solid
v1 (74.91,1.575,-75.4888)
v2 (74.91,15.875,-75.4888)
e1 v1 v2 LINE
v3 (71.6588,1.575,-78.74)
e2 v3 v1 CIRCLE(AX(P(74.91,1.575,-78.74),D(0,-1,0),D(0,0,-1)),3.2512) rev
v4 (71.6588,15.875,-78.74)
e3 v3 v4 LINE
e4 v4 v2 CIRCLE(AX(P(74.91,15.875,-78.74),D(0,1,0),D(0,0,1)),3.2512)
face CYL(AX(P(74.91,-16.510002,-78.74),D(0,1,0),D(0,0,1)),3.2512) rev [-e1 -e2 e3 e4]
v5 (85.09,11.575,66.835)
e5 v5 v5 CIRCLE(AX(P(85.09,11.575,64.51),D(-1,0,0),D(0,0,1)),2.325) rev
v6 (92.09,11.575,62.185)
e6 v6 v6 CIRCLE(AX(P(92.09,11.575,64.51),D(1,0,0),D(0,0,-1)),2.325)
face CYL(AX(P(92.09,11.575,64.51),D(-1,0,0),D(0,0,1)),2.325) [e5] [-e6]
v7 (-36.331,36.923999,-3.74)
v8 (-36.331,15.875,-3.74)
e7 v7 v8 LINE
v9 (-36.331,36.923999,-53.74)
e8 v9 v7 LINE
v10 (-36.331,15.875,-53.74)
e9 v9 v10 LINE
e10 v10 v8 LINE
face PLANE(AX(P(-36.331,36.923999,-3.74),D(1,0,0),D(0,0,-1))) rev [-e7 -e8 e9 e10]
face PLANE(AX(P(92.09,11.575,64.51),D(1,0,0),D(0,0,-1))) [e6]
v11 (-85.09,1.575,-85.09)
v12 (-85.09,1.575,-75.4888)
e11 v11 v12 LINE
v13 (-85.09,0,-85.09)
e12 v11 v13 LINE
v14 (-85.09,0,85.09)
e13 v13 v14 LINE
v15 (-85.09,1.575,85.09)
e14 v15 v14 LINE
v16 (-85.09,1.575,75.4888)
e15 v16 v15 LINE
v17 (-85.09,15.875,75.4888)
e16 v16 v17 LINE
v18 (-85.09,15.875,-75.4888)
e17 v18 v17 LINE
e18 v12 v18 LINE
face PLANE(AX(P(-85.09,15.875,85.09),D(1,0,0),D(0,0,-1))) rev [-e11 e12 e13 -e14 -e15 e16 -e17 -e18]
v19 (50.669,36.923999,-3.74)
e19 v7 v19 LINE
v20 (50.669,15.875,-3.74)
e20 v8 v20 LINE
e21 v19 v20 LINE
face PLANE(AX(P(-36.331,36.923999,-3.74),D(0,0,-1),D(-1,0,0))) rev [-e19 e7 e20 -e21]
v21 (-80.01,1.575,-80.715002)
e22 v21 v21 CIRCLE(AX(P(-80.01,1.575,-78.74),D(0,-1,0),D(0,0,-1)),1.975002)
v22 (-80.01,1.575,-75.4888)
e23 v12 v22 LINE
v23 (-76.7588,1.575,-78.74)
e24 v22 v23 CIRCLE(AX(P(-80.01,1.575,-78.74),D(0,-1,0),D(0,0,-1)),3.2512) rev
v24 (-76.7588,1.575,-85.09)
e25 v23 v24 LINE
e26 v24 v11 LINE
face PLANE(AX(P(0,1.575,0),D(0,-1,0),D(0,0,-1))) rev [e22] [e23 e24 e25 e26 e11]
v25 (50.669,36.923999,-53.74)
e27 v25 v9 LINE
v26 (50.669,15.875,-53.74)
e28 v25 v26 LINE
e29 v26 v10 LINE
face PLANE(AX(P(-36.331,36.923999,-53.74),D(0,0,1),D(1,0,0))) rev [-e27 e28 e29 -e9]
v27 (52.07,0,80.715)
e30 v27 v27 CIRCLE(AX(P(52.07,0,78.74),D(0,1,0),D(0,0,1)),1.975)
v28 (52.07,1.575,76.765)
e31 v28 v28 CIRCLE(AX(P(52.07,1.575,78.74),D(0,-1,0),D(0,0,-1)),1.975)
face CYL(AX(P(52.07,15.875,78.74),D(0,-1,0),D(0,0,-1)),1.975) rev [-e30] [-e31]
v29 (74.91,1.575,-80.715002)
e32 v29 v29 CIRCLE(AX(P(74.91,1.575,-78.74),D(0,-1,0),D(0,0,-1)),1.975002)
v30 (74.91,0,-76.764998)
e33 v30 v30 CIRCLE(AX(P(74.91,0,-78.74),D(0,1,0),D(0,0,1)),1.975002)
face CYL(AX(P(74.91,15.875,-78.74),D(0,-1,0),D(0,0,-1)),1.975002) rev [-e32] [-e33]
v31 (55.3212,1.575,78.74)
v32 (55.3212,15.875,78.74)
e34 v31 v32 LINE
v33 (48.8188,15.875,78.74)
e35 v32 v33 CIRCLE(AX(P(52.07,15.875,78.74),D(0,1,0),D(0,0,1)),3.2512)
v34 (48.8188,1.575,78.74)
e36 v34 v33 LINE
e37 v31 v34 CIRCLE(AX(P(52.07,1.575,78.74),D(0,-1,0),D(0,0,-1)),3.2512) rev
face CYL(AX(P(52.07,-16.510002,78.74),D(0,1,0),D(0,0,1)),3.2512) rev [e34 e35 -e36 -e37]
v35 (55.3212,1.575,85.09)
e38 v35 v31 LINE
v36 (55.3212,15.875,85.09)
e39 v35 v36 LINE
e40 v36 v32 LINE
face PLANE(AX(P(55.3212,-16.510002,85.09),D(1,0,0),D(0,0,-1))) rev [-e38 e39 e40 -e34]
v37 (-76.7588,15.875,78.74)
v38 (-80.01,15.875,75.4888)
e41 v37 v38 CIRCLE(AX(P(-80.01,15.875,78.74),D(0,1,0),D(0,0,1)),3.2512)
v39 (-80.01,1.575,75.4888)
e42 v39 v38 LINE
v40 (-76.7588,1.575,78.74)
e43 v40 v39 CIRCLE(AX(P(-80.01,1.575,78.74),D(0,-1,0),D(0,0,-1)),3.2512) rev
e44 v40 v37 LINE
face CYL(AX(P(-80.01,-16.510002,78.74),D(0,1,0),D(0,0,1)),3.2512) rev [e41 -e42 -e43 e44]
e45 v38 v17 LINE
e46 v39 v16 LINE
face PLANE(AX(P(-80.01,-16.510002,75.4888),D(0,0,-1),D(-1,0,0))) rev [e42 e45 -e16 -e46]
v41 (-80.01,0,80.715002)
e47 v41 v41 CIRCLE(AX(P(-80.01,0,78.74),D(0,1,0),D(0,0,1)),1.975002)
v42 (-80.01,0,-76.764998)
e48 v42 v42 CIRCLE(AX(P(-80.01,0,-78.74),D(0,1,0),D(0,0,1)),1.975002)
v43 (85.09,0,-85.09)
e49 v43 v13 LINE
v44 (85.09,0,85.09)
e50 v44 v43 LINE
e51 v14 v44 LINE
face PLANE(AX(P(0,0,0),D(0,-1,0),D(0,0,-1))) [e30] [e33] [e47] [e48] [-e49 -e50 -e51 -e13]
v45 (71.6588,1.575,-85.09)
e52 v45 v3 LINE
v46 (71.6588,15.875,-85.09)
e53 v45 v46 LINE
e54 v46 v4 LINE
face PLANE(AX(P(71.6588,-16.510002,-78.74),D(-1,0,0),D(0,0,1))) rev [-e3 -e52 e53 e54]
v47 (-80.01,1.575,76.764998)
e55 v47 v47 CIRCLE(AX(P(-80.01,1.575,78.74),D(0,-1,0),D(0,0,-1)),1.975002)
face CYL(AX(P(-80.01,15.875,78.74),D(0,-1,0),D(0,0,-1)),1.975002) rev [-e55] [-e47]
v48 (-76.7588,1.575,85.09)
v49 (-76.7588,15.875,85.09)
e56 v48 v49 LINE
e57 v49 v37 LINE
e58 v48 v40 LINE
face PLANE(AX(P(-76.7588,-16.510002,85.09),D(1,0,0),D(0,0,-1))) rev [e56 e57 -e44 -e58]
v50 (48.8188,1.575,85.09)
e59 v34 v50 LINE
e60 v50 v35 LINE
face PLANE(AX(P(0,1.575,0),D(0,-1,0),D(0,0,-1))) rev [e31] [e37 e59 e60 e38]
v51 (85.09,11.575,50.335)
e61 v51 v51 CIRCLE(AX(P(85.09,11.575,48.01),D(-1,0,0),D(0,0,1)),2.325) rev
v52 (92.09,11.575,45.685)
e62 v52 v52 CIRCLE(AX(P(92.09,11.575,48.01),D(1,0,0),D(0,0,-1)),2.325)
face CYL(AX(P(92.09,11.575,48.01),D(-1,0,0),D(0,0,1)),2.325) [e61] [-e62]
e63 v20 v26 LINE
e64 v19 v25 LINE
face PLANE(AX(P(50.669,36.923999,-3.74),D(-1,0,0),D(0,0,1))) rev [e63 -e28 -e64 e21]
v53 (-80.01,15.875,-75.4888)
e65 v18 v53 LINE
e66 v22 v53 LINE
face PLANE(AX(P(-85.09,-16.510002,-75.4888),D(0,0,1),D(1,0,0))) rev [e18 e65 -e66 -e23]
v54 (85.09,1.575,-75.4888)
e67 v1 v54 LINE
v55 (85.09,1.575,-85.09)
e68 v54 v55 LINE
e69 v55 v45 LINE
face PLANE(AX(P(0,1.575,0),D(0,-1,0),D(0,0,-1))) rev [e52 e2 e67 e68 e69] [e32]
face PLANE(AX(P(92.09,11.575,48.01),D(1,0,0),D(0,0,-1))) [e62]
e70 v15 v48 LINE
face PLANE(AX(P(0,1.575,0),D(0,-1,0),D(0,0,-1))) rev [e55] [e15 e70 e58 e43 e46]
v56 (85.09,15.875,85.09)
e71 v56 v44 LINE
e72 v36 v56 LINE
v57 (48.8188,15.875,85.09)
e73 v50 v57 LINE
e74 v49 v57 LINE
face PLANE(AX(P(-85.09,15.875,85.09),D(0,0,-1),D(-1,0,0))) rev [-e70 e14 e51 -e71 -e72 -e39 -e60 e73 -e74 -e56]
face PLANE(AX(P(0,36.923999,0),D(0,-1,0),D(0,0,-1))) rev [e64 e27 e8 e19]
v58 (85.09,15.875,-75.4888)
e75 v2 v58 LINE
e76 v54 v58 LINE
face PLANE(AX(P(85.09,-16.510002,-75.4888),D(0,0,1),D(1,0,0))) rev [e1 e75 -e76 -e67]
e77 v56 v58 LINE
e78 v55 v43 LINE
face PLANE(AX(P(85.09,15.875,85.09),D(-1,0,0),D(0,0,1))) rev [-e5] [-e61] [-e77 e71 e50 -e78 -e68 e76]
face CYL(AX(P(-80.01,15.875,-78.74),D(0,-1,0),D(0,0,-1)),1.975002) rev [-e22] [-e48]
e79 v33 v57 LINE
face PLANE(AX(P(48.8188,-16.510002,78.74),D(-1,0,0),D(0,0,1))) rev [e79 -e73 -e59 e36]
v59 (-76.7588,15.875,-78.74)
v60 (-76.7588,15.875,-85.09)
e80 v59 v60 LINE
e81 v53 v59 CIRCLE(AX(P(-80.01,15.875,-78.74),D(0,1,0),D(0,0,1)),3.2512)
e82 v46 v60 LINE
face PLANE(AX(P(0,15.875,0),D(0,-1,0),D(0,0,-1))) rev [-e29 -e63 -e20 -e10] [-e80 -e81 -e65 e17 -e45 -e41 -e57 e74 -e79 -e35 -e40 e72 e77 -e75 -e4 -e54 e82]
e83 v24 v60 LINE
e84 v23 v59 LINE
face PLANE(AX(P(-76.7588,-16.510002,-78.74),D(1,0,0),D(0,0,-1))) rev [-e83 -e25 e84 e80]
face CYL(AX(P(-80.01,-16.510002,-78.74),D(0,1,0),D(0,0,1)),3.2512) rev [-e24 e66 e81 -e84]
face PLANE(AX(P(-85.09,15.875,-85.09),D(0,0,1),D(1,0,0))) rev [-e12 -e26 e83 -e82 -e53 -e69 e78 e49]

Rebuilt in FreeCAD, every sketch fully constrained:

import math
import FreeCAD as App
import Part
import Sketcher

V = App.Vector
Q = App.Units.Quantity


def add_polygon(sketch, points):
    """Adds a closed chain of lines whose ends are joined by coincident constraints."""
    first, n = sketch.GeometryCount, len(points)
    for a, b in zip(points, points[1:] + points[:1]):
        sketch.addGeometry(Part.LineSegment(App.Vector(*a, 0), App.Vector(*b, 0)), False)
    for i in range(n):
        sketch.addConstraint(Sketcher.Constraint("Coincident", first + i, 2, first + (i + 1) % n, 1))

doc = App.newDocument("Part")
body = doc.addObject("PartDesign::Body", "Body")

# Sketch on XZ plane
sketch1 = body.newObject("Sketcher::SketchObject", "Sketch")
sketch1.AttachmentSupport = (doc.getObject("XZ_Plane"), [""])
sketch1.MapMode = "FlatFace"
add_polygon(sketch1, [(-85.1, -85.1), (-85.1, 85.1), (85.1, 85.1), (85.1, -85.1)])  # lines 0-3
sketch1.addGeometry(Part.Circle(V(-80, 78.7, 0), V(0, 0, 1), 2), False)  # 4
sketch1.addGeometry(Part.Circle(V(52.1, 78.7, 0), V(0, 0, 1), 2), False)  # 5
sketch1.addGeometry(Part.Circle(V(-80, -78.7, 0), V(0, 0, 1), 2), False)  # 6
sketch1.addGeometry(Part.Circle(V(74.9, -78.7, 0), V(0, 0, 1), 2), False)  # 7
sketch1.addConstraint([
    Sketcher.Constraint("Vertical", 0),
    Sketcher.Constraint("Horizontal", 1),
    Sketcher.Constraint("Vertical", 2),
    Sketcher.Constraint("Horizontal", 3),
    Sketcher.Constraint("Equal", 4, 6),
    Sketcher.Constraint("Equal", 6, 7),
    Sketcher.Constraint("Symmetric", 0, 2, 2, 2, -1, 1),
    Sketcher.Constraint("Symmetric", 4, 3, 6, 3, -1),
    Sketcher.Constraint("Horizontal", 4, 3, 5, 3),
    Sketcher.Constraint("Horizontal", 6, 3, 7, 3),
    Sketcher.Constraint("Equal", 3, 0),
    Sketcher.Constraint("DistanceX", 1, 1, 1, 2, Q("6.7 in")),
    Sketcher.Constraint("DistanceY", -1, 1, 4, 3, Q("3.1 in")),
    Sketcher.Constraint("DistanceX", 4, 3, 5, 3, Q("5.2 in")),
    Sketcher.Constraint("DistanceX", 0, 2, 4, 3, Q("0.2 in")),
    Sketcher.Constraint("Diameter", 5, Q("3.95 mm")),
    Sketcher.Constraint("Diameter", 4, Q("3.950005 mm")),
    Sketcher.Constraint("DistanceX", -1, 1, 7, 3, Q("74.91 mm")),
])
pad1 = body.newObject("PartDesign::Pad", "Pad")
pad1.Profile = sketch1
pad1.Length = Q("0.625 in")
pad1.Reversed = True

# Sketch on XZ plane
sketch2 = body.newObject("Sketcher::SketchObject", "Sketch001")
sketch2.AttachmentSupport = (doc.getObject("XZ_Plane"), [""])
sketch2.MapMode = "FlatFace"
sketch2.AttachmentOffset = App.Placement(V(0, 0, -0.625 * 25.4), App.Rotation())
sketch2.addGeometry([
    Part.LineSegment(V(-76.8, -78.7, 0), V(-76.8, -85.1, 0)),  # 0
    Part.LineSegment(V(-76.8, -85.1, 0), V(-85.1, -85.1, 0)),  # 1
    Part.LineSegment(V(-85.1, -85.1, 0), V(-85.1, -75.5, 0)),  # 2
    Part.LineSegment(V(-85.1, -75.5, 0), V(-80, -75.5, 0)),  # 3
    Part.ArcOfCircle(Part.Circle(V(-80, -78.7, 0), V(0, 0, 1), 3.3), math.radians(0), math.radians(90)),  # 4
    Part.LineSegment(V(71.7, -85.1, 0), V(71.7, -78.7, 0)),  # 5
    Part.ArcOfCircle(Part.Circle(V(74.9, -78.7, 0), V(0, 0, 1), 3.3), math.radians(90), math.radians(180)),  # 6
    Part.LineSegment(V(74.9, -75.5, 0), V(85.1, -75.5, 0)),  # 7
    Part.LineSegment(V(85.1, -75.5, 0), V(85.1, -85.1, 0)),  # 8
    Part.LineSegment(V(85.1, -85.1, 0), V(71.7, -85.1, 0)),  # 9
    Part.LineSegment(V(48.8, 78.7, 0), V(48.8, 85.1, 0)),  # 10
    Part.LineSegment(V(48.8, 85.1, 0), V(55.3, 85.1, 0)),  # 11
    Part.LineSegment(V(55.3, 85.1, 0), V(55.3, 78.7, 0)),  # 12
    Part.ArcOfCircle(Part.Circle(V(52.1, 78.7, 0), V(0, 0, 1), 3.3), math.radians(180), math.radians(360)),  # 13
    Part.LineSegment(V(-80, 75.5, 0), V(-85.1, 75.5, 0)),  # 14
    Part.LineSegment(V(-85.1, 75.5, 0), V(-85.1, 85.1, 0)),  # 15
    Part.LineSegment(V(-85.1, 85.1, 0), V(-76.8, 85.1, 0)),  # 16
    Part.LineSegment(V(-76.8, 85.1, 0), V(-76.8, 78.7, 0)),  # 17
    Part.ArcOfCircle(Part.Circle(V(-80, 78.7, 0), V(0, 0, 1), 3.3), math.radians(-90), math.radians(0)),  # 18
], False)
sketch2.addConstraint([
    Sketcher.Constraint("Coincident", 0, 2, 1, 1),
    Sketcher.Constraint("Coincident", 1, 2, 2, 1),
    Sketcher.Constraint("Coincident", 2, 2, 3, 1),
    Sketcher.Constraint("Tangent", 3, 2, 4, 2),
    Sketcher.Constraint("Tangent", 4, 1, 0, 1),
    Sketcher.Constraint("Tangent", 5, 2, 6, 2),
    Sketcher.Constraint("Tangent", 6, 1, 7, 1),
    Sketcher.Constraint("Coincident", 7, 2, 8, 1),
    Sketcher.Constraint("Coincident", 8, 2, 9, 1),
    Sketcher.Constraint("Coincident", 9, 2, 5, 1),
    Sketcher.Constraint("Coincident", 10, 2, 11, 1),
    Sketcher.Constraint("Coincident", 11, 2, 12, 1),
    Sketcher.Constraint("Tangent", 12, 2, 13, 2),
    Sketcher.Constraint("Tangent", 13, 1, 10, 1),
    Sketcher.Constraint("Coincident", 14, 2, 15, 1),
    Sketcher.Constraint("Coincident", 15, 2, 16, 1),
    Sketcher.Constraint("Coincident", 16, 2, 17, 1),
    Sketcher.Constraint("Tangent", 17, 2, 18, 2),
    Sketcher.Constraint("Tangent", 18, 1, 14, 1),
    Sketcher.Constraint("Vertical", 0),
    Sketcher.Constraint("Horizontal", 1),
    Sketcher.Constraint("Vertical", 2),
    Sketcher.Constraint("Horizontal", 3),
    Sketcher.Constraint("Vertical", 5),
    Sketcher.Constraint("Horizontal", 7),
    Sketcher.Constraint("Vertical", 8),
    Sketcher.Constraint("Horizontal", 9),
    Sketcher.Constraint("Vertical", 10),
    Sketcher.Constraint("Horizontal", 11),
    Sketcher.Constraint("Vertical", 12),
    Sketcher.Constraint("Horizontal", 14),
    Sketcher.Constraint("Vertical", 15),
    Sketcher.Constraint("Horizontal", 16),
    Sketcher.Constraint("Vertical", 17),
    Sketcher.Constraint("Equal", 4, 6),
    Sketcher.Constraint("Equal", 6, 13),
    Sketcher.Constraint("Equal", 13, 18),
    Sketcher.Constraint("Symmetric", 7, 2, 14, 2, -1, 1),
    Sketcher.Constraint("Symmetric", 2, 2, 7, 2, -2),
    Sketcher.Constraint("Symmetric", 0, 2, 16, 2, -1),
    Sketcher.Constraint("Horizontal", 13, 3, 18, 3),
    Sketcher.Constraint("Horizontal", 1, 2, 8, 2),
    Sketcher.Constraint("Horizontal", 11, 2, 15, 2),
    Sketcher.Constraint("DistanceX", 3, 1, 3, 2, Q("0.2 in")),
    Sketcher.Constraint("Radius", 4, Q("0.128 in")),
    Sketcher.Constraint("DistanceY", 0, 2, 0, 1, Q("0.25 in")),
    Sketcher.Constraint("DistanceY", 4, 3, -1, 1, Q("3.1 in")),
    Sketcher.Constraint("DistanceX", 4, 3, 13, 3, Q("5.2 in")),
    Sketcher.Constraint("DistanceX", 13, 3, 7, 2, Q("1.3 in")),
    Sketcher.Constraint("DistanceX", 7, 1, 7, 2, Q("10.18 mm")),
])
pocket1 = body.newObject("PartDesign::Pocket", "Pocket")
pocket1.Profile = sketch2
pocket1.Length = 14.3
pocket1.Reversed = True

# Sketch on XZ plane
sketch3 = body.newObject("Sketcher::SketchObject", "Sketch002")
sketch3.AttachmentSupport = (doc.getObject("XZ_Plane"), [""])
sketch3.MapMode = "FlatFace"
sketch3.AttachmentOffset = App.Placement(V(0, 0, -0.625 * 25.4), App.Rotation())
add_polygon(sketch3, [(-36, -54), (-36, -4), (51, -4), (51, -54)])  # lines 0-3
sketch3.addConstraint([
    Sketcher.Constraint("Vertical", 0),
    Sketcher.Constraint("Horizontal", 1),
    Sketcher.Constraint("Vertical", 2),
    Sketcher.Constraint("Horizontal", 3),
    Sketcher.Constraint("DistanceX", 1, 1, 1, 2, Q("87 mm")),
    Sketcher.Constraint("DistanceY", 0, 1, 0, 2, Q("50 mm")),
    Sketcher.Constraint("DistanceX", 0, 2, -1, 1, Q("36.331 mm")),
    Sketcher.Constraint("DistanceY", 0, 2, -1, 1, Q("3.74 mm")),
])
pad2 = body.newObject("PartDesign::Pad", "Pad001")
pad2.Profile = sketch3
pad2.Length = 21.048999
pad2.Reversed = True

# Sketch on YZ plane
sketch4 = body.newObject("Sketcher::SketchObject", "Sketch003")
sketch4.AttachmentSupport = (doc.getObject("YZ_Plane"), [""])
sketch4.MapMode = "FlatFace"
sketch4.AttachmentOffset = App.Placement(V(0, 0, 3.35 * 25.4), App.Rotation())
sketch4.addGeometry([
    Part.Circle(V(11.6, 64.5, 0), V(0, 0, 1), 2.3),
    Part.Circle(V(11.6, 48, 0), V(0, 0, 1), 2.3),
], False)
sketch4.addConstraint([
    Sketcher.Constraint("Equal", 0, 1),
    Sketcher.Constraint("Vertical", 0, 3, 1, 3),
    Sketcher.Constraint("Diameter", 0, Q("4.65 mm")),
    Sketcher.Constraint("DistanceX", -1, 1, 0, 3, Q("11.575 mm")),
    Sketcher.Constraint("DistanceY", -1, 1, 0, 3, Q("64.51 mm")),
    Sketcher.Constraint("DistanceY", -1, 1, 1, 3, Q("48.01 mm")),
])
pad3 = body.newObject("PartDesign::Pad", "Pad002")
pad3.Profile = sketch4
pad3.Length = 7

doc.recompute()
